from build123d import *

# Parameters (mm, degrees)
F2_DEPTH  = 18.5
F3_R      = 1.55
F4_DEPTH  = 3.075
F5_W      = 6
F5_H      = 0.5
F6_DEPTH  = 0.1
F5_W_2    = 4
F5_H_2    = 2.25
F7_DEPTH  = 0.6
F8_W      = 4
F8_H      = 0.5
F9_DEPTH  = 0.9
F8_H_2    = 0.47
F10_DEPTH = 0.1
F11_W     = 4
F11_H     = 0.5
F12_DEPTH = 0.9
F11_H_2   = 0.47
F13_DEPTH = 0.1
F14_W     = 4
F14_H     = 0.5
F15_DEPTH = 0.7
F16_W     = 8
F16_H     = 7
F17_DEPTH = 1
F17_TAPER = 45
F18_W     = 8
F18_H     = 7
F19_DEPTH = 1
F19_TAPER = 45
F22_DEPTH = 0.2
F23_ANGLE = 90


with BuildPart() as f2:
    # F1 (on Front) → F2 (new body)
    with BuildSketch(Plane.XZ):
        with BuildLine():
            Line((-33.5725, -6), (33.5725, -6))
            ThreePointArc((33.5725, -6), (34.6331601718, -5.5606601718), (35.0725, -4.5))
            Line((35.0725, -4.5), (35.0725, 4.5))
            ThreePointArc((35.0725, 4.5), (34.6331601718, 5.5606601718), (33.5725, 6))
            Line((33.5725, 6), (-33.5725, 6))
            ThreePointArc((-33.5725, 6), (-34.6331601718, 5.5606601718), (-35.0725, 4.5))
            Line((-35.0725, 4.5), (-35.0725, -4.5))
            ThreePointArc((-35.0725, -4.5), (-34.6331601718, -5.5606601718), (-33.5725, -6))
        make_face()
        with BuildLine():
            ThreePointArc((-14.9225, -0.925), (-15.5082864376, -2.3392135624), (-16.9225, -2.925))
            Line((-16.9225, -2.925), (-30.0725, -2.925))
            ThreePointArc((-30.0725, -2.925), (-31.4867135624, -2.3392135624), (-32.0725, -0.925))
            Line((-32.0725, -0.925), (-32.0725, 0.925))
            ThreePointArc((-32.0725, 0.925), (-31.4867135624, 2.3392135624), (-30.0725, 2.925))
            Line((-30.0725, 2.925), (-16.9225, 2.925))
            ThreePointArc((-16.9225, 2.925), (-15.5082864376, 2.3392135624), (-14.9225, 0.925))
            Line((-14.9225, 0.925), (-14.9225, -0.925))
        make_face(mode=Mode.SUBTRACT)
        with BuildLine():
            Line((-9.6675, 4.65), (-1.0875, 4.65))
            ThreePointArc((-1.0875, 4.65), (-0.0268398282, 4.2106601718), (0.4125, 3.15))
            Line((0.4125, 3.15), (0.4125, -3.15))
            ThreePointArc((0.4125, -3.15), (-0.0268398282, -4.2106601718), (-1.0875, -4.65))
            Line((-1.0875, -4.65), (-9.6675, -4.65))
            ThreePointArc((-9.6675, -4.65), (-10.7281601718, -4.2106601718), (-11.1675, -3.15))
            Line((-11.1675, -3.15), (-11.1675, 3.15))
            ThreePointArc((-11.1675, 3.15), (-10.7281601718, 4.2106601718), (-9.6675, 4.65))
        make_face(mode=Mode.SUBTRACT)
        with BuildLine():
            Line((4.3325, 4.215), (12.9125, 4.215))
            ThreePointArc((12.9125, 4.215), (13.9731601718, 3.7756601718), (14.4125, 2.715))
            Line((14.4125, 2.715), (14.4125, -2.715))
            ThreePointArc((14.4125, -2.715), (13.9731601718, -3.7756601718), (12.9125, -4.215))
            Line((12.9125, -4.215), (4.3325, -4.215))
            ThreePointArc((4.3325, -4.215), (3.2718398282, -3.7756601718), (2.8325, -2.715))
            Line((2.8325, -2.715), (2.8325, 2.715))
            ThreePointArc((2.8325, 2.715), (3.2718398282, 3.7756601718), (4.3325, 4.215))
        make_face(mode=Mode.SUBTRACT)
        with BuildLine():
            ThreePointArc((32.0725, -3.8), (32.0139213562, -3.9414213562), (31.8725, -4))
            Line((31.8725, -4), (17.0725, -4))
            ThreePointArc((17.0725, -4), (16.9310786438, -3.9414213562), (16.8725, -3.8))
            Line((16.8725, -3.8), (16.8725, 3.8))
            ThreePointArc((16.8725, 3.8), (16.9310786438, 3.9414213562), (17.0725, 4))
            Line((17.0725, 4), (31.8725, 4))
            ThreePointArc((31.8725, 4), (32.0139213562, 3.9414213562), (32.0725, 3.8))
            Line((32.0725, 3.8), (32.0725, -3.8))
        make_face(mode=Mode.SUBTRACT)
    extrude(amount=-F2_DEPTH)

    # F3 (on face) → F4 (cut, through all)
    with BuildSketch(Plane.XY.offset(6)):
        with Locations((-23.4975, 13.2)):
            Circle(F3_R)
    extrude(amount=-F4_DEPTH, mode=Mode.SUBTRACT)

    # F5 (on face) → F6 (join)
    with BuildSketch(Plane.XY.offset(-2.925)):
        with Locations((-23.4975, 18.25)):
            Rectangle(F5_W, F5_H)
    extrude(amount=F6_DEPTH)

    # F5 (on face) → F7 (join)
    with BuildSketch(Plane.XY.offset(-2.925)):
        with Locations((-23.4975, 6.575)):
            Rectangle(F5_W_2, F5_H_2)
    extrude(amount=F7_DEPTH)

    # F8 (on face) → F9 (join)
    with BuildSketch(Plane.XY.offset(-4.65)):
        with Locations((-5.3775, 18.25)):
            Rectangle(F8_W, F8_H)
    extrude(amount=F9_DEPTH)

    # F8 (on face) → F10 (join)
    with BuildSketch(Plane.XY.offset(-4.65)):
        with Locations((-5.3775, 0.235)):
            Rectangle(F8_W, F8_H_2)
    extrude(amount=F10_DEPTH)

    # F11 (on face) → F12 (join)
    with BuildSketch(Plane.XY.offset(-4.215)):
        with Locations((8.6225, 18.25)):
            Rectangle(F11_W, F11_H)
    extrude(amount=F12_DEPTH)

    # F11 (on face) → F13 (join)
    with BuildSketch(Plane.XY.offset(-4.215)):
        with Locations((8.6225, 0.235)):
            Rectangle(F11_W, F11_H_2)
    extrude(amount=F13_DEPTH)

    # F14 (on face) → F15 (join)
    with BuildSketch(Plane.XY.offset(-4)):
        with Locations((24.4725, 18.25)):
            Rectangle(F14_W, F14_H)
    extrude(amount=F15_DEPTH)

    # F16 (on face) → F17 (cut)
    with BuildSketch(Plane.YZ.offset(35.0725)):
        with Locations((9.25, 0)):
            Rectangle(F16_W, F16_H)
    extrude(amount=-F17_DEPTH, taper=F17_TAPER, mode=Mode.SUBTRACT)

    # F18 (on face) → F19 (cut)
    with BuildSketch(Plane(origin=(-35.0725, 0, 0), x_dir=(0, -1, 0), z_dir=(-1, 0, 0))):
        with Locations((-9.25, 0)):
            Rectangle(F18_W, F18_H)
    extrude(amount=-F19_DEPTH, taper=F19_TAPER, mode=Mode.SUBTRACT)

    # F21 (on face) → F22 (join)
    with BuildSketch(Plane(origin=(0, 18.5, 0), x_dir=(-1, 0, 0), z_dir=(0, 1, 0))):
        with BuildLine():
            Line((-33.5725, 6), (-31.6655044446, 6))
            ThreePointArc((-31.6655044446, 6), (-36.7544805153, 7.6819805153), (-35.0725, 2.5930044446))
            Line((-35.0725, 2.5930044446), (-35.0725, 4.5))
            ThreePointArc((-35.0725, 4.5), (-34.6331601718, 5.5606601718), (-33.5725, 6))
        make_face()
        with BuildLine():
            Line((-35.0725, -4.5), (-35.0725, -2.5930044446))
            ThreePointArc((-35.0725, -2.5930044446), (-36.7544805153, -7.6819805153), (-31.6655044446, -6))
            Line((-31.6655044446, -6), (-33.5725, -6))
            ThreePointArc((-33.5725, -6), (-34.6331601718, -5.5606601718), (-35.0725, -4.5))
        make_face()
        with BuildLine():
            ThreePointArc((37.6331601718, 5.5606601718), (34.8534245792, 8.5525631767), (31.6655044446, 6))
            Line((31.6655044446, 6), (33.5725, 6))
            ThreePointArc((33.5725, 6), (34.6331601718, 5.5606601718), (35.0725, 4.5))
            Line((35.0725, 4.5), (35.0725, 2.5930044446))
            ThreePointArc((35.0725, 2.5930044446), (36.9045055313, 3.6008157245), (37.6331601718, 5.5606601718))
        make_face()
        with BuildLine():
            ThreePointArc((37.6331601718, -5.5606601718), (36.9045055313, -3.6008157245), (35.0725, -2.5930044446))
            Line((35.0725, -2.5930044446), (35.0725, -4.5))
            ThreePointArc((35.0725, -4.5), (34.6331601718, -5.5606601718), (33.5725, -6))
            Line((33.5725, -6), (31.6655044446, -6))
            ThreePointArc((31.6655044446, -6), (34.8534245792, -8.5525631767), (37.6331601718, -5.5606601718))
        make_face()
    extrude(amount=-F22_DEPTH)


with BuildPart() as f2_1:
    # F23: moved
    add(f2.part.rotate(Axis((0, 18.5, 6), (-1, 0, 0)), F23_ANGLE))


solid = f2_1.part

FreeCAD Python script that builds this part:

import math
import FreeCAD as App
import Part
import Sketcher
Q = App.Units.Quantity

doc = App.newDocument("Part")
params = doc.addObject("Spreadsheet::Sheet", "Params")
for row, (alias, value) in enumerate([
    ("sketch1_radius", "2 mm"),
    ("sketch1_radius2", "1.5 mm"),
    ("sketch1_radius3", "0.2 mm"),
    ("sketch1_height", "9 mm"),
    ("sketch1_width", "14.8 mm"),
    ("pad1_length", "18.5 mm"),
    ("sketch2_diameter", "3.1 mm"),
    ("pocket1_length", "3.075 mm"),
    ("sketch3_width", "6 mm"),
    ("sketch3_height", "0.5 mm"),
    ("pad2_length", "0.1 mm"),
    ("sketch4_width", "4 mm"),
    ("sketch4_height", "2.25 mm"),
    ("pad3_length", "0.6 mm"),
    ("sketch5_width", "4 mm"),
    ("sketch5_height", "0.5 mm"),
    ("pad4_length", "0.9 mm"),
    ("sketch6_width", "4 mm"),
    ("sketch6_height", "0.47 mm"),
    ("pad5_length", "0.1 mm"),
    ("sketch7_width", "4 mm"),
    ("sketch7_height", "0.5 mm"),
    ("pad6_length", "0.9 mm"),
    ("sketch8_width", "4 mm"),
    ("sketch8_height", "0.47 mm"),
    ("pad7_length", "0.1 mm"),
    ("sketch9_width", "4 mm"),
    ("sketch9_height", "0.5 mm"),
    ("pad8_length", "0.7 mm"),
    ("sketch10_width", "8 mm"),
    ("sketch10_height", "7 mm"),
    ("pocket2_length", "1 mm"),
    ("pocket2_taper", "-45 deg"),
    ("sketch11_width", "8 mm"),
    ("sketch11_height", "7 mm"),
    ("pocket3_length", "1 mm"),
    ("pocket3_taper", "-45 deg"),
    ("sketch12_radius", "3 mm"),
    ("sketch12_radius2", "1.5 mm"),
    ("pad9_length", "0.2 mm"),
], start=1):
    params.set(f"A{row}", alias)
    params.set(f"B{row}", "=" + value)
    params.setAlias(f"B{row}", alias)

body = doc.addObject("PartDesign::Body", "Body")

# Sketch on XZ plane
sketch1 = body.newObject("Sketcher::SketchObject", "Sketch")
sketch1.AttachmentSupport = (doc.getObject("XZ_Plane"), [""])
sketch1.MapMode = "FlatFace"
sketch1.addGeometry(Part.LineSegment(App.Vector(-33.57, -6, 0), App.Vector(33.57, -6, 0)), False)
sketch1.addGeometry(Part.ArcOfCircle(Part.Circle(App.Vector(33.57, -4.5, 0), App.Vector(0, 0, 1), 1.5), math.radians(-90), math.radians(0)), False)
sketch1.addGeometry(Part.LineSegment(App.Vector(35.07, -4.5, 0), App.Vector(35.07, 4.5, 0)), False)
sketch1.addGeometry(Part.ArcOfCircle(Part.Circle(App.Vector(33.57, 4.5, 0), App.Vector(0, 0, 1), 1.5), math.radians(0), math.radians(90)), False)
sketch1.addGeometry(Part.LineSegment(App.Vector(33.57, 6, 0), App.Vector(-33.57, 6, 0)), False)
sketch1.addGeometry(Part.ArcOfCircle(Part.Circle(App.Vector(-33.57, 4.5, 0), App.Vector(0, 0, 1), 1.5), math.radians(90), math.radians(180)), False)
sketch1.addGeometry(Part.LineSegment(App.Vector(-35.07, 4.5, 0), App.Vector(-35.07, -4.5, 0)), False)
sketch1.addGeometry(Part.ArcOfCircle(Part.Circle(App.Vector(-33.57, -4.5, 0), App.Vector(0, 0, 1), 1.5), math.radians(180), math.radians(270)), False)
sketch1.addGeometry(Part.ArcOfCircle(Part.Circle(App.Vector(4.33, 2.71, 0), App.Vector(0, 0, 1), 1.5), math.radians(90), math.radians(180)), False)
sketch1.addGeometry(Part.LineSegment(App.Vector(4.33, 4.21, 0), App.Vector(12.91, 4.21, 0)), False)
sketch1.addGeometry(Part.ArcOfCircle(Part.Circle(App.Vector(12.91, 2.71, 0), App.Vector(0, 0, 1), 1.5), math.radians(0), math.radians(90)), False)
sketch1.addGeometry(Part.LineSegment(App.Vector(14.41, 2.71, 0), App.Vector(14.41, -2.71, 0)), False)
sketch1.addGeometry(Part.ArcOfCircle(Part.Circle(App.Vector(12.91, -2.71, 0), App.Vector(0, 0, 1), 1.5), math.radians(-90), math.radians(0)), False)
sketch1.addGeometry(Part.LineSegment(App.Vector(12.91, -4.21, 0), App.Vector(4.33, -4.21, 0)), False)
sketch1.addGeometry(Part.ArcOfCircle(Part.Circle(App.Vector(4.33, -2.71, 0), App.Vector(0, 0, 1), 1.5), math.radians(180), math.radians(270)), False)
sketch1.addGeometry(Part.LineSegment(App.Vector(2.83, -2.71, 0), App.Vector(2.83, 2.71, 0)), False)
sketch1.addGeometry(Part.LineSegment(App.Vector(-14.92, 0.93, 0), App.Vector(-14.92, -0.93, 0)), False)
sketch1.addGeometry(Part.ArcOfCircle(Part.Circle(App.Vector(-16.92, -0.93, 0), App.Vector(0, 0, 1), 2), math.radians(-90), math.radians(0)), False)
sketch1.addGeometry(Part.LineSegment(App.Vector(-16.92, -2.92, 0), App.Vector(-30.07, -2.92, 0)), False)
sketch1.addGeometry(Part.ArcOfCircle(Part.Circle(App.Vector(-30.07, -0.93, 0), App.Vector(0, 0, 1), 2), math.radians(180), math.radians(270)), False)
sketch1.addGeometry(Part.LineSegment(App.Vector(-32.07, -0.93, 0), App.Vector(-32.07, 0.93, 0)), False)
sketch1.addGeometry(Part.ArcOfCircle(Part.Circle(App.Vector(-30.07, 0.93, 0), App.Vector(0, 0, 1), 2), math.radians(90), math.radians(180)), False)
sketch1.addGeometry(Part.LineSegment(App.Vector(-30.07, 2.92, 0), App.Vector(-16.92, 2.92, 0)), False)
sketch1.addGeometry(Part.ArcOfCircle(Part.Circle(App.Vector(-16.92, 0.93, 0), App.Vector(0, 0, 1), 2), math.radians(0), math.radians(90)), False)
sketch1.addGeometry(Part.ArcOfCircle(Part.Circle(App.Vector(-9.67, 3.15, 0), App.Vector(0, 0, 1), 1.5), math.radians(90), math.radians(180)), False)
sketch1.addGeometry(Part.LineSegment(App.Vector(-9.67, 4.65, 0), App.Vector(-1.09, 4.65, 0)), False)
sketch1.addGeometry(Part.ArcOfCircle(Part.Circle(App.Vector(-1.09, 3.15, 0), App.Vector(0, 0, 1), 1.5), math.radians(0), math.radians(90)), False)
sketch1.addGeometry(Part.LineSegment(App.Vector(0.41, 3.15, 0), App.Vector(0.41, -3.15, 0)), False)
sketch1.addGeometry(Part.ArcOfCircle(Part.Circle(App.Vector(-1.09, -3.15, 0), App.Vector(0, 0, 1), 1.5), math.radians(-90), math.radians(0)), False)
sketch1.addGeometry(Part.LineSegment(App.Vector(-1.09, -4.65, 0), App.Vector(-9.67, -4.65, 0)), False)
sketch1.addGeometry(Part.ArcOfCircle(Part.Circle(App.Vector(-9.67, -3.15, 0), App.Vector(0, 0, 1), 1.5), math.radians(180), math.radians(270)), False)
sketch1.addGeometry(Part.LineSegment(App.Vector(-11.17, -3.15, 0), App.Vector(-11.17, 3.15, 0)), False)
sketch1.addGeometry(Part.LineSegment(App.Vector(32.07, 3.8, 0), App.Vector(32.07, -3.8, 0)), False)
sketch1.addGeometry(Part.ArcOfCircle(Part.Circle(App.Vector(31.87, -3.8, 0), App.Vector(0, 0, 1), 0.2), math.radians(-90), math.radians(0)), False)
sketch1.addGeometry(Part.LineSegment(App.Vector(31.87, -4, 0), App.Vector(17.07, -4, 0)), False)
sketch1.addGeometry(Part.ArcOfCircle(Part.Circle(App.Vector(17.07, -3.8, 0), App.Vector(0, 0, 1), 0.2), math.radians(180), math.radians(270)), False)
sketch1.addGeometry(Part.LineSegment(App.Vector(16.87, -3.8, 0), App.Vector(16.87, 3.8, 0)), False)
sketch1.addGeometry(Part.ArcOfCircle(Part.Circle(App.Vector(17.07, 3.8, 0), App.Vector(0, 0, 1), 0.2), math.radians(90), math.radians(180)), False)
sketch1.addGeometry(Part.LineSegment(App.Vector(17.07, 4, 0), App.Vector(31.87, 4, 0)), False)
sketch1.addGeometry(Part.ArcOfCircle(Part.Circle(App.Vector(31.87, 3.8, 0), App.Vector(0, 0, 1), 0.2), math.radians(0), math.radians(90)), False)
sketch1.addConstraint(Sketcher.Constraint("Tangent", 0, 2, 1, 1))
sketch1.addConstraint(Sketcher.Constraint("Tangent", 1, 2, 2, 1))
sketch1.addConstraint(Sketcher.Constraint("Tangent", 2, 2, 3, 1))
sketch1.addConstraint(Sketcher.Constraint("Tangent", 3, 2, 4, 1))
sketch1.addConstraint(Sketcher.Constraint("Tangent", 4, 2, 5, 1))
sketch1.addConstraint(Sketcher.Constraint("Tangent", 5, 2, 6, 1))
sketch1.addConstraint(Sketcher.Constraint("Tangent", 6, 2, 7, 1))
sketch1.addConstraint(Sketcher.Constraint("Tangent", 7, 2, 0, 1))
sketch1.addConstraint(Sketcher.Constraint("Tangent", 8, 1, 9, 1))
sketch1.addConstraint(Sketcher.Constraint("Tangent", 9, 2, 10, 2))
sketch1.addConstraint(Sketcher.Constraint("Tangent", 10, 1, 11, 1))
sketch1.addConstraint(Sketcher.Constraint("Tangent", 11, 2, 12, 2))
sketch1.addConstraint(Sketcher.Constraint("Tangent", 12, 1, 13, 1))
sketch1.addConstraint(Sketcher.Constraint("Tangent", 13, 2, 14, 2))
sketch1.addConstraint(Sketcher.Constraint("Tangent", 14, 1, 15, 1))
sketch1.addConstraint(Sketcher.Constraint("Tangent", 15, 2, 8, 2))
sketch1.addConstraint(Sketcher.Constraint("Tangent", 16, 2, 17, 2))
sketch1.addConstraint(Sketcher.Constraint("Tangent", 17, 1, 18, 1))
sketch1.addConstraint(Sketcher.Constraint("Tangent", 18, 2, 19, 2))
sketch1.addConstraint(Sketcher.Constraint("Tangent", 19, 1, 20, 1))
sketch1.addConstraint(Sketcher.Constraint("Tangent", 20, 2, 21, 2))
sketch1.addConstraint(Sketcher.Constraint("Tangent", 21, 1, 22, 1))
sketch1.addConstraint(Sketcher.Constraint("Tangent", 22, 2, 23, 2))
sketch1.addConstraint(Sketcher.Constraint("Tangent", 23, 1, 16, 1))
sketch1.addConstraint(Sketcher.Constraint("Tangent", 24, 1, 25, 1))
sketch1.addConstraint(Sketcher.Constraint("Tangent", 25, 2, 26, 2))
sketch1.addConstraint(Sketcher.Constraint("Tangent", 26, 1, 27, 1))
sketch1.addConstraint(Sketcher.Constraint("Tangent", 27, 2, 28, 2))
sketch1.addConstraint(Sketcher.Constraint("Tangent", 28, 1, 29, 1))
sketch1.addConstraint(Sketcher.Constraint("Tangent", 29, 2, 30, 2))
sketch1.addConstraint(Sketcher.Constraint("Tangent", 30, 1, 31, 1))
sketch1.addConstraint(Sketcher.Constraint("Tangent", 31, 2, 24, 2))
sketch1.addConstraint(Sketcher.Constraint("Tangent", 32, 2, 33, 2))
sketch1.addConstraint(Sketcher.Constraint("Tangent", 33, 1, 34, 1))
sketch1.addConstraint(Sketcher.Constraint("Tangent", 34, 2, 35, 2))
sketch1.addConstraint(Sketcher.Constraint("Tangent", 35, 1, 36, 1))
sketch1.addConstraint(Sketcher.Constraint("Tangent", 36, 2, 37, 2))
sketch1.addConstraint(Sketcher.Constraint("Tangent", 37, 1, 38, 1))
sketch1.addConstraint(Sketcher.Constraint("Tangent", 38, 2, 39, 2))
sketch1.addConstraint(Sketcher.Constraint("Tangent", 39, 1, 32, 1))
sketch1.addConstraint(Sketcher.Constraint("Horizontal", 0))
sketch1.addConstraint(Sketcher.Constraint("Vertical", 2))
sketch1.addConstraint(Sketcher.Constraint("Horizontal", 4))
sketch1.addConstraint(Sketcher.Constraint("Vertical", 6))
sketch1.addConstraint(Sketcher.Constraint("Horizontal", 9))
sketch1.addConstraint(Sketcher.Constraint("Vertical", 11))
sketch1.addConstraint(Sketcher.Constraint("Horizontal", 13))
sketch1.addConstraint(Sketcher.Constraint("Vertical", 15))
sketch1.addConstraint(Sketcher.Constraint("Vertical", 16))
sketch1.addConstraint(Sketcher.Constraint("Horizontal", 18))
sketch1.addConstraint(Sketcher.Constraint("Vertical", 20))
sketch1.addConstraint(Sketcher.Constraint("Horizontal", 22))
sketch1.addConstraint(Sketcher.Constraint("Horizontal", 25))
sketch1.addConstraint(Sketcher.Constraint("Vertical", 27))
sketch1.addConstraint(Sketcher.Constraint("Horizontal", 29))
sketch1.addConstraint(Sketcher.Constraint("Vertical", 31))
sketch1.addConstraint(Sketcher.Constraint("Vertical", 32))
sketch1.addConstraint(Sketcher.Constraint("Horizontal", 34))
sketch1.addConstraint(Sketcher.Constraint("Vertical", 36))
sketch1.addConstraint(Sketcher.Constraint("Horizontal", 38))
sketch1.addConstraint(Sketcher.Constraint("Equal", 1, 3))
sketch1.addConstraint(Sketcher.Constraint("Equal", 3, 5))
sketch1.addConstraint(Sketcher.Constraint("Equal", 5, 7))
sketch1.addConstraint(Sketcher.Constraint("Equal", 7, 8))
sketch1.addConstraint(Sketcher.Constraint("Equal", 8, 10))
sketch1.addConstraint(Sketcher.Constraint("Equal", 10, 12))
sketch1.addConstraint(Sketcher.Constraint("Equal", 12, 14))
sketch1.addConstraint(Sketcher.Constraint("Equal", 17, 19))
sketch1.addConstraint(Sketcher.Constraint("Equal", 19, 21))
sketch1.addConstraint(Sketcher.Constraint("Equal", 21, 23))
sketch1.addConstraint(Sketcher.Constraint("Equal", 14, 24))
sketch1.addConstraint(Sketcher.Constraint("Equal", 24, 26))
sketch1.addConstraint(Sketcher.Constraint("Equal", 26, 28))
sketch1.addConstraint(Sketcher.Constraint("Equal", 28, 30))
sketch1.addConstraint(Sketcher.Constraint("Equal", 33, 35))
sketch1.addConstraint(Sketcher.Constraint("Equal", 35, 37))
sketch1.addConstraint(Sketcher.Constraint("Equal", 37, 39))
sketch1.addConstraint(Sketcher.Constraint("Symmetric", 1, 3, 5, 3, -1, 1))
sketch1.addConstraint(Sketcher.Constraint("Equal", 13, 25))
sketch1.addConstraint(Sketcher.Constraint("Radius", 17, Q("2 mm")))
sketch1.addConstraint(Sketcher.Constraint("Radius", 1, Q("1.5 mm")))
sketch1.addConstraint(Sketcher.Constraint("Radius", 33, Q("0.2 mm")))
sketch1.addConstraint(Sketcher.Constraint("DistanceY", 2, 1, 2, 2, Q("9 mm")))
sketch1.addConstraint(Sketcher.Constraint("DistanceX", 34, 2, 34, 1, Q("14.8 mm")))
sketch1.addConstraint(Sketcher.Constraint("DistanceY", 27, 2, 27, 1, Q("6.3 mm")))
sketch1.addConstraint(Sketcher.Constraint("DistanceY", 32, 2, 32, 1, Q("7.6 mm")))
sketch1.addConstraint(Sketcher.Constraint("DistanceY", 33, 1, -1, 1, Q("4 mm")))
sketch1.addConstraint(Sketcher.Constraint("DistanceX", 24, 3, 8, 3, Q("14 mm")))
sketch1.addConstraint(Sketcher.Constraint("DistanceX", 5, 2, 21, 3, Q("5 mm")))
sketch1.addConstraint(Sketcher.Constraint("DistanceX", 32, 2, 1, 2, Q("3 mm")))
sketch1.addConstraint(Sketcher.Constraint("DistanceX", 9, 1, 9, 2, Q("8.58 mm")))
sketch1.addConstraint(Sketcher.Constraint("DistanceX", 18, 2, 18, 1, Q("13.15 mm")))
sketch1.addConstraint(Sketcher.Constraint("DistanceY", 11, 2, 11, 1, Q("5.43 mm")))
sketch1.addConstraint(Sketcher.Constraint("DistanceY", 16, 2, 16, 1, Q("1.85 mm")))
sketch1.addConstraint(Sketcher.Constraint("DistanceX", 0, 1, 0, 2, Q("67.145 mm")))
sketch1.addConstraint(Sketcher.Constraint("DistanceY", -1, 1, 24, 3, Q("3.15 mm")))
sketch1.addConstraint(Sketcher.Constraint("DistanceX", 8, 3, 3, 3, Q("29.24 mm")))
sketch1.addConstraint(Sketcher.Constraint("DistanceY", 14, 3, 17, 3, Q("1.79 mm")))
sketch1.addConstraint(Sketcher.Constraint("DistanceY", -1, 1, 8, 3, Q("2.715 mm")))
sketch1.setExpression("Constraints[79]", "Params.sketch1_radius")
sketch1.setExpression("Constraints[80]", "Params.sketch1_radius2")
sketch1.setExpression("Constraints[81]", "Params.sketch1_radius3")
sketch1.setExpression("Constraints[82]", "Params.sketch1_height")
sketch1.setExpression("Constraints[83]", "Params.sketch1_width")
pad1 = body.newObject("PartDesign::Pad", "Pad")
pad1.Profile = sketch1
pad1.setExpression("Length", "Params.pad1_length")
pad1.Reversed = True

# Sketch on XY plane
sketch2 = body.newObject("Sketcher::SketchObject", "Sketch001")
sketch2.AttachmentSupport = (doc.getObject("XY_Plane"), [""])
sketch2.MapMode = "FlatFace"
sketch2.AttachmentOffset = App.Placement(App.Vector(0, 0, 6), App.Rotation())
sketch2.addGeometry(Part.Circle(App.Vector(-23.5, 13.2, 0), App.Vector(0, 0, 1), 1.6), False)
sketch2.addConstraint(Sketcher.Constraint("Diameter", 0, Q("3.1 mm")))
sketch2.addConstraint(Sketcher.Constraint("DistanceY", -1, 1, 0, 3, Q("13.2 mm")))
sketch2.addConstraint(Sketcher.Constraint("DistanceX", 0, 3, -1, 1, Q("23.4975 mm")))
sketch2.setExpression("Constraints[0]", "Params.sketch2_diameter")
pocket1 = body.newObject("PartDesign::Pocket", "Pocket")
pocket1.Profile = sketch2
pocket1.setExpression("Length", "Params.pocket1_length")

# Sketch on XY plane
sketch3 = body.newObject("Sketcher::SketchObject", "Sketch002")
sketch3.AttachmentSupport = (doc.getObject("XY_Plane"), [""])
sketch3.MapMode = "FlatFace"
sketch3.AttachmentOffset = App.Placement(App.Vector(0, 0, -2.925), App.Rotation())
sketch3.addGeometry(Part.LineSegment(App.Vector(-26.5, 18.5, 0), App.Vector(-26.5, 18, 0)), False)
sketch3.addGeometry(Part.LineSegment(App.Vector(-26.5, 18, 0), App.Vector(-20.5, 18, 0)), False)
sketch3.addGeometry(Part.LineSegment(App.Vector(-20.5, 18, 0), App.Vector(-20.5, 18.5, 0)), False)
sketch3.addGeometry(Part.LineSegment(App.Vector(-20.5, 18.5, 0), App.Vector(-26.5, 18.5, 0)), False)
sketch3.addConstraint(Sketcher.Constraint("Coincident", 0, 2, 1, 1))
sketch3.addConstraint(Sketcher.Constraint("Coincident", 1, 2, 2, 1))
sketch3.addConstraint(Sketcher.Constraint("Coincident", 2, 2, 3, 1))
sketch3.addConstraint(Sketcher.Constraint("Coincident", 3, 2, 0, 1))
sketch3.addConstraint(Sketcher.Constraint("Vertical", 0))
sketch3.addConstraint(Sketcher.Constraint("Horizontal", 1))
sketch3.addConstraint(Sketcher.Constraint("Vertical", 2))
sketch3.addConstraint(Sketcher.Constraint("Horizontal", 3))
sketch3.addConstraint(Sketcher.Constraint("DistanceX", 1, 1, 1, 2, Q("6 mm")))
sketch3.addConstraint(Sketcher.Constraint("DistanceY", 0, 2, 0, 1, Q("0.5 mm")))
sketch3.addConstraint(Sketcher.Constraint("DistanceY", -1, 1, 0, 2, Q("18 mm")))
sketch3.addConstraint(Sketcher.Constraint("DistanceX", 0, 2, -1, 1, Q("26.4975 mm")))
sketch3.setExpression("Constraints[8]", "Params.sketch3_width")
sketch3.setExpression("Constraints[9]", "Params.sketch3_height")
pad2 = body.newObject("PartDesign::Pad", "Pad001")
pad2.Profile = sketch3
pad2.setExpression("Length", "Params.pad2_length")

# Sketch on XY plane
sketch4 = body.newObject("Sketcher::SketchObject", "Sketch003")
sketch4.AttachmentSupport = (doc.getObject("XY_Plane"), [""])
sketch4.MapMode = "FlatFace"
sketch4.AttachmentOffset = App.Placement(App.Vector(0, 0, -2.925), App.Rotation())
sketch4.addGeometry(Part.LineSegment(App.Vector(-25.5, 7.7, 0), App.Vector(-25.5, 5.5, 0)), False)
sketch4.addGeometry(Part.LineSegment(App.Vector(-25.5, 5.5, 0), App.Vector(-21.5, 5.5, 0)), False)
sketch4.addGeometry(Part.LineSegment(App.Vector(-21.5, 5.5, 0), App.Vector(-21.5, 7.7, 0)), False)
sketch4.addGeometry(Part.LineSegment(App.Vector(-21.5, 7.7, 0), App.Vector(-25.5, 7.7, 0)), False)
sketch4.addConstraint(Sketcher.Constraint("Coincident", 0, 2, 1, 1))
sketch4.addConstraint(Sketcher.Constraint("Coincident", 1, 2, 2, 1))
sketch4.addConstraint(Sketcher.Constraint("Coincident", 2, 2, 3, 1))
sketch4.addConstraint(Sketcher.Constraint("Coincident", 3, 2, 0, 1))
sketch4.addConstraint(Sketcher.Constraint("Vertical", 0))
sketch4.addConstraint(Sketcher.Constraint("Horizontal", 1))
sketch4.addConstraint(Sketcher.Constraint("Vertical", 2))
sketch4.addConstraint(Sketcher.Constraint("Horizontal", 3))
sketch4.addConstraint(Sketcher.Constraint("DistanceX", 1, 1, 1, 2, Q("4 mm")))
sketch4.addConstraint(Sketcher.Constraint("DistanceY", 0, 2, 0, 1, Q("2.25 mm")))
sketch4.addConstraint(Sketcher.Constraint("DistanceY", -1, 1, 2, 2, Q("7.7 mm")))
sketch4.addConstraint(Sketcher.Constraint("DistanceX", 0, 2, -1, 1, Q("25.4975 mm")))
sketch4.setExpression("Constraints[8]", "Params.sketch4_width")
sketch4.setExpression("Constraints[9]", "Params.sketch4_height")
pad3 = body.newObject("PartDesign::Pad", "Pad002")
pad3.Profile = sketch4
pad3.setExpression("Length", "Params.pad3_length")

# Sketch on XY plane
sketch5 = body.newObject("Sketcher::SketchObject", "Sketch004")
sketch5.AttachmentSupport = (doc.getObject("XY_Plane"), [""])
sketch5.MapMode = "FlatFace"
sketch5.AttachmentOffset = App.Placement(App.Vector(0, 0, -4.65), App.Rotation())
sketch5.addGeometry(Part.LineSegment(App.Vector(-7.4, 18.5, 0), App.Vector(-7.4, 18, 0)), False)
sketch5.addGeometry(Part.LineSegment(App.Vector(-7.4, 18, 0), App.Vector(-3.4, 18, 0)), False)
sketch5.addGeometry(Part.LineSegment(App.Vector(-3.4, 18, 0), App.Vector(-3.4, 18.5, 0)), False)
sketch5.addGeometry(Part.LineSegment(App.Vector(-3.4, 18.5, 0), App.Vector(-7.4, 18.5, 0)), False)
sketch5.addConstraint(Sketcher.Constraint("Coincident", 0, 2, 1, 1))
sketch5.addConstraint(Sketcher.Constraint("Coincident", 1, 2, 2, 1))
sketch5.addConstraint(Sketcher.Constraint("Coincident", 2, 2, 3, 1))
sketch5.addConstraint(Sketcher.Constraint("Coincident", 3, 2, 0, 1))
sketch5.addConstraint(Sketcher.Constraint("Vertical", 0))
sketch5.addConstraint(Sketcher.Constraint("Horizontal", 1))
sketch5.addConstraint(Sketcher.Constraint("Vertical", 2))
sketch5.addConstraint(Sketcher.Constraint("Horizontal", 3))
sketch5.addConstraint(Sketcher.Constraint("DistanceX", 1, 1, 1, 2, Q("4 mm")))
sketch5.addConstraint(Sketcher.Constraint("DistanceY", 0, 2, 0, 1, Q("0.5 mm")))
sketch5.addConstraint(Sketcher.Constraint("DistanceY", -1, 1, 0, 2, Q("18 mm")))
sketch5.addConstraint(Sketcher.Constraint("DistanceX", 0, 2, -1, 1, Q("7.3775 mm")))
sketch5.setExpression("Constraints[8]", "Params.sketch5_width")
sketch5.setExpression("Constraints[9]", "Params.sketch5_height")
pad4 = body.newObject("PartDesign::Pad", "Pad003")
pad4.Profile = sketch5
pad4.setExpression("Length", "Params.pad4_length")

# Sketch on XY plane
sketch6 = body.newObject("Sketcher::SketchObject", "Sketch005")
sketch6.AttachmentSupport = (doc.getObject("XY_Plane"), [""])
sketch6.MapMode = "FlatFace"
sketch6.AttachmentOffset = App.Placement(App.Vector(0, 0, -4.65), App.Rotation())
sketch6.addGeometry(Part.LineSegment(App.Vector(-7.38, 0.47, 0), App.Vector(-7.38, 0, 0)), False)
sketch6.addGeometry(Part.LineSegment(App.Vector(-7.38, 0, 0), App.Vector(-3.38, 0, 0)), False)
sketch6.addGeometry(Part.LineSegment(App.Vector(-3.38, 0, 0), App.Vector(-3.38, 0.47, 0)), False)
sketch6.addGeometry(Part.LineSegment(App.Vector(-3.38, 0.47, 0), App.Vector(-7.38, 0.47, 0)), False)
sketch6.addConstraint(Sketcher.Constraint("Coincident", 0, 2, 1, 1))
sketch6.addConstraint(Sketcher.Constraint("Coincident", 1, 2, 2, 1))
sketch6.addConstraint(Sketcher.Constraint("Coincident", 2, 2, 3, 1))
sketch6.addConstraint(Sketcher.Constraint("Coincident", 3, 2, 0, 1))
sketch6.addConstraint(Sketcher.Constraint("Vertical", 0))
sketch6.addConstraint(Sketcher.Constraint("Horizontal", 1))
sketch6.addConstraint(Sketcher.Constraint("Vertical", 2))
sketch6.addConstraint(Sketcher.Constraint("Horizontal", 3))
sketch6.addConstraint(Sketcher.Constraint("PointOnObject", 0, 2, -1))
sketch6.addConstraint(Sketcher.Constraint("DistanceX", 1, 1, 1, 2, Q("4 mm")))
sketch6.addConstraint(Sketcher.Constraint("DistanceY", 0, 2, 0, 1, Q("0.47 mm")))
sketch6.addConstraint(Sketcher.Constraint("DistanceX", 0, 2, -1, 1, Q("7.3775 mm")))
sketch6.setExpression("Constraints[9]", "Params.sketch6_width")
sketch6.setExpression("Constraints[10]", "Params.sketch6_height")
pad5 = body.newObject("PartDesign::Pad", "Pad004")
pad5.Profile = sketch6
pad5.setExpression("Length", "Params.pad5_length")

# Sketch on XY plane
sketch7 = body.newObject("Sketcher::SketchObject", "Sketch006")
sketch7.AttachmentSupport = (doc.getObject("XY_Plane"), [""])
sketch7.MapMode = "FlatFace"
sketch7.AttachmentOffset = App.Placement(App.Vector(0, 0, -4.215), App.Rotation())
sketch7.addGeometry(Part.LineSegment(App.Vector(6.6, 18.5, 0), App.Vector(6.6, 18, 0)), False)
sketch7.addGeometry(Part.LineSegment(App.Vector(6.6, 18, 0), App.Vector(10.6, 18, 0)), False)
sketch7.addGeometry(Part.LineSegment(App.Vector(10.6, 18, 0), App.Vector(10.6, 18.5, 0)), False)
sketch7.addGeometry(Part.LineSegment(App.Vector(10.6, 18.5, 0), App.Vector(6.6, 18.5, 0)), False)
sketch7.addConstraint(Sketcher.Constraint("Coincident", 0, 2, 1, 1))
sketch7.addConstraint(Sketcher.Constraint("Coincident", 1, 2, 2, 1))
sketch7.addConstraint(Sketcher.Constraint("Coincident", 2, 2, 3, 1))
sketch7.addConstraint(Sketcher.Constraint("Coincident", 3, 2, 0, 1))
sketch7.addConstraint(Sketcher.Constraint("Vertical", 0))
sketch7.addConstraint(Sketcher.Constraint("Horizontal", 1))
sketch7.addConstraint(Sketcher.Constraint("Vertical", 2))
sketch7.addConstraint(Sketcher.Constraint("Horizontal", 3))
sketch7.addConstraint(Sketcher.Constraint("DistanceX", 1, 1, 1, 2, Q("4 mm")))
sketch7.addConstraint(Sketcher.Constraint("DistanceY", 0, 2, 0, 1, Q("0.5 mm")))
sketch7.addConstraint(Sketcher.Constraint("DistanceY", -1, 1, 0, 2, Q("18 mm")))
sketch7.addConstraint(Sketcher.Constraint("DistanceX", -1, 1, 0, 2, Q("6.6225 mm")))
sketch7.setExpression("Constraints[8]", "Params.sketch7_width")
sketch7.setExpression("Constraints[9]", "Params.sketch7_height")
pad6 = body.newObject("PartDesign::Pad", "Pad005")
pad6.Profile = sketch7
pad6.setExpression("Length", "Params.pad6_length")

# Sketch on XY plane
sketch8 = body.newObject("Sketcher::SketchObject", "Sketch007")
sketch8.AttachmentSupport = (doc.getObject("XY_Plane"), [""])
sketch8.MapMode = "FlatFace"
sketch8.AttachmentOffset = App.Placement(App.Vector(0, 0, -4.215), App.Rotation())
sketch8.addGeometry(Part.LineSegment(App.Vector(6.62, 0.47, 0), App.Vector(6.62, 0, 0)), False)
sketch8.addGeometry(Part.LineSegment(App.Vector(6.62, 0, 0), App.Vector(10.62, 0, 0)), False)
sketch8.addGeometry(Part.LineSegment(App.Vector(10.62, 0, 0), App.Vector(10.62, 0.47, 0)), False)
sketch8.addGeometry(Part.LineSegment(App.Vector(10.62, 0.47, 0), App.Vector(6.62, 0.47, 0)), False)
sketch8.addConstraint(Sketcher.Constraint("Coincident", 0, 2, 1, 1))
sketch8.addConstraint(Sketcher.Constraint("Coincident", 1, 2, 2, 1))
sketch8.addConstraint(Sketcher.Constraint("Coincident", 2, 2, 3, 1))
sketch8.addConstraint(Sketcher.Constraint("Coincident", 3, 2, 0, 1))
sketch8.addConstraint(Sketcher.Constraint("Vertical", 0))
sketch8.addConstraint(Sketcher.Constraint("Horizontal", 1))
sketch8.addConstraint(Sketcher.Constraint("Vertical", 2))
sketch8.addConstraint(Sketcher.Constraint("Horizontal", 3))
sketch8.addConstraint(Sketcher.Constraint("PointOnObject", 0, 2, -1))
sketch8.addConstraint(Sketcher.Constraint("DistanceX", 1, 1, 1, 2, Q("4 mm")))
sketch8.addConstraint(Sketcher.Constraint("DistanceY", 0, 2, 0, 1, Q("0.47 mm")))
sketch8.addConstraint(Sketcher.Constraint("DistanceX", -1, 1, 0, 2, Q("6.6225 mm")))
sketch8.setExpression("Constraints[9]", "Params.sketch8_width")
sketch8.setExpression("Constraints[10]", "Params.sketch8_height")
pad7 = body.newObject("PartDesign::Pad", "Pad006")
pad7.Profile = sketch8
pad7.setExpression("Length", "Params.pad7_length")

# Sketch on XY plane
sketch9 = body.newObject("Sketcher::SketchObject", "Sketch008")
sketch9.AttachmentSupport = (doc.getObject("XY_Plane"), [""])
sketch9.MapMode = "FlatFace"
sketch9.AttachmentOffset = App.Placement(App.Vector(0, 0, -4), App.Rotation())
sketch9.addGeometry(Part.LineSegment(App.Vector(22.5, 18.5, 0), App.Vector(22.5, 18, 0)), False)
sketch9.addGeometry(Part.LineSegment(App.Vector(22.5, 18, 0), App.Vector(26.5, 18, 0)), False)
sketch9.addGeometry(Part.LineSegment(App.Vector(26.5, 18, 0), App.Vector(26.5, 18.5, 0)), False)
sketch9.addGeometry(Part.LineSegment(App.Vector(26.5, 18.5, 0), App.Vector(22.5, 18.5, 0)), False)
sketch9.addConstraint(Sketcher.Constraint("Coincident", 0, 2, 1, 1))
sketch9.addConstraint(Sketcher.Constraint("Coincident", 1, 2, 2, 1))
sketch9.addConstraint(Sketcher.Constraint("Coincident", 2, 2, 3, 1))
sketch9.addConstraint(Sketcher.Constraint("Coincident", 3, 2, 0, 1))
sketch9.addConstraint(Sketcher.Constraint("Vertical", 0))
sketch9.addConstraint(Sketcher.Constraint("Horizontal", 1))
sketch9.addConstraint(Sketcher.Constraint("Vertical", 2))
sketch9.addConstraint(Sketcher.Constraint("Horizontal", 3))
sketch9.addConstraint(Sketcher.Constraint("DistanceX", 1, 1, 1, 2, Q("4 mm")))
sketch9.addConstraint(Sketcher.Constraint("DistanceY", 0, 2, 0, 1, Q("0.5 mm")))
sketch9.addConstraint(Sketcher.Constraint("DistanceY", -1, 1, 0, 2, Q("18 mm")))
sketch9.addConstraint(Sketcher.Constraint("DistanceX", -1, 1, 0, 2, Q("22.4725 mm")))
sketch9.setExpression("Constraints[8]", "Params.sketch9_width")
sketch9.setExpression("Constraints[9]", "Params.sketch9_height")
pad8 = body.newObject("PartDesign::Pad", "Pad007")
pad8.Profile = sketch9
pad8.setExpression("Length", "Params.pad8_length")

# Sketch on YZ plane
sketch10 = body.newObject("Sketcher::SketchObject", "Sketch009")
sketch10.AttachmentSupport = (doc.getObject("YZ_Plane"), [""])
sketch10.MapMode = "FlatFace"
sketch10.AttachmentOffset = App.Placement(App.Vector(0, 0, 35.0725), App.Rotation())
sketch10.addGeometry(Part.LineSegment(App.Vector(5, 4, 0), App.Vector(5, -4, 0)), False)
sketch10.addGeometry(Part.LineSegment(App.Vector(5, -4, 0), App.Vector(13, -4, 0)), False)
sketch10.addGeometry(Part.LineSegment(App.Vector(13, -4, 0), App.Vector(13, 4, 0)), False)
sketch10.addGeometry(Part.LineSegment(App.Vector(13, 4, 0), App.Vector(5, 4, 0)), False)
sketch10.addConstraint(Sketcher.Constraint("Coincident", 0, 2, 1, 1))
sketch10.addConstraint(Sketcher.Constraint("Coincident", 1, 2, 2, 1))
sketch10.addConstraint(Sketcher.Constraint("Coincident", 2, 2, 3, 1))
sketch10.addConstraint(Sketcher.Constraint("Coincident", 3, 2, 0, 1))
sketch10.addConstraint(Sketcher.Constraint("Vertical", 0))
sketch10.addConstraint(Sketcher.Constraint("Horizontal", 1))
sketch10.addConstraint(Sketcher.Constraint("Vertical", 2))
sketch10.addConstraint(Sketcher.Constraint("Horizontal", 3))
sketch10.addConstraint(Sketcher.Constraint("DistanceX", 1, 1, 1, 2, Q("8 mm")))
sketch10.addConstraint(Sketcher.Constraint("DistanceY", 0, 2, 0, 1, Q("7 mm")))
sketch10.addConstraint(Sketcher.Constraint("DistanceY", 0, 2, -1, 1, Q("3.5 mm")))
sketch10.addConstraint(Sketcher.Constraint("DistanceX", -1, 1, 0, 2, Q("5.25 mm")))
sketch10.setExpression("Constraints[8]", "Params.sketch10_width")
sketch10.setExpression("Constraints[9]", "Params.sketch10_height")
pocket2 = body.newObject("PartDesign::Pocket", "Pocket001")
pocket2.Profile = sketch10
pocket2.setExpression("Length", "Params.pocket2_length")
pocket2.setExpression("TaperAngle", "Params.pocket2_taper")

# Sketch on YZ plane
sketch11 = body.newObject("Sketcher::SketchObject", "Sketch010")
sketch11.AttachmentSupport = (doc.getObject("YZ_Plane"), [""])
sketch11.MapMode = "FlatFace"
sketch11.AttachmentOffset = App.Placement(App.Vector(0, 0, -35.0725), App.Rotation())
sketch11.addGeometry(Part.LineSegment(App.Vector(13, 4, 0), App.Vector(13, -4, 0)), False)
sketch11.addGeometry(Part.LineSegment(App.Vector(13, -4, 0), App.Vector(5, -4, 0)), False)
sketch11.addGeometry(Part.LineSegment(App.Vector(5, -4, 0), App.Vector(5, 4, 0)), False)
sketch11.addGeometry(Part.LineSegment(App.Vector(5, 4, 0), App.Vector(13, 4, 0)), False)
sketch11.addConstraint(Sketcher.Constraint("Coincident", 0, 2, 1, 1))
sketch11.addConstraint(Sketcher.Constraint("Coincident", 1, 2, 2, 1))
sketch11.addConstraint(Sketcher.Constraint("Coincident", 2, 2, 3, 1))
sketch11.addConstraint(Sketcher.Constraint("Coincident", 3, 2, 0, 1))
sketch11.addConstraint(Sketcher.Constraint("Vertical", 0))
sketch11.addConstraint(Sketcher.Constraint("Horizontal", 1))
sketch11.addConstraint(Sketcher.Constraint("Vertical", 2))
sketch11.addConstraint(Sketcher.Constraint("Horizontal", 3))
sketch11.addConstraint(Sketcher.Constraint("DistanceX", 1, 2, 1, 1, Q("8 mm")))
sketch11.addConstraint(Sketcher.Constraint("DistanceY", 0, 2, 0, 1, Q("7 mm")))
sketch11.addConstraint(Sketcher.Constraint("DistanceY", 0, 2, -1, 1, Q("3.5 mm")))
sketch11.addConstraint(Sketcher.Constraint("DistanceX", -1, 1, 0, 2, Q("13.25 mm")))
sketch11.setExpression("Constraints[8]", "Params.sketch11_width")
sketch11.setExpression("Constraints[9]", "Params.sketch11_height")
pocket3 = body.newObject("PartDesign::Pocket", "Pocket002")
pocket3.Profile = sketch11
pocket3.setExpression("Length", "Params.pocket3_length")
pocket3.Reversed = True
pocket3.setExpression("TaperAngle", "Params.pocket3_taper")

# Sketch on XZ plane
sketch12 = body.newObject("Sketcher::SketchObject", "Sketch011")
sketch12.AttachmentSupport = (doc.getObject("XZ_Plane"), [""])
sketch12.MapMode = "FlatFace"
sketch12.AttachmentOffset = App.Placement(App.Vector(0, 0, -18.5), App.Rotation())
sketch12.addGeometry(Part.LineSegment(App.Vector(33.6, 6, 0), App.Vector(31.7, 6, 0)), False)
sketch12.addGeometry(Part.ArcOfCircle(Part.Circle(App.Vector(34.6, 5.6, 0), App.Vector(0, 0, 1), 3), math.radians(-82), math.radians(172)), False)
sketch12.addGeometry(Part.LineSegment(App.Vector(35.1, 2.6, 0), App.Vector(35.1, 4.5, 0)), False)
sketch12.addGeometry(Part.ArcOfCircle(Part.Circle(App.Vector(33.6, 4.5, 0), App.Vector(0, 0, 1), 1.5), math.radians(0), math.radians(90)), False)
sketch12.addGeometry(Part.LineSegment(App.Vector(35.1, -4.5, 0), App.Vector(35.1, -2.6, 0)), False)
sketch12.addGeometry(Part.ArcOfCircle(Part.Circle(App.Vector(34.6, -5.6, 0), App.Vector(0, 0, 1), 3), math.radians(-172), math.radians(82)), False)
sketch12.addGeometry(Part.LineSegment(App.Vector(31.7, -6, 0), App.Vector(33.6, -6, 0)), False)
sketch12.addGeometry(Part.ArcOfCircle(Part.Circle(App.Vector(33.6, -4.5, 0), App.Vector(0, 0, 1), 1.5), math.radians(-90), math.radians(0)), False)
sketch12.addGeometry(Part.ArcOfCircle(Part.Circle(App.Vector(-34.6, 5.6, 0), App.Vector(0, 0, 1), 3), math.radians(8), math.radians(180)), False)
sketch12.addGeometry(Part.LineSegment(App.Vector(-31.7, 6, 0), App.Vector(-33.6, 6, 0)), False)
sketch12.addGeometry(Part.ArcOfCircle(Part.Circle(App.Vector(-33.6, 4.5, 0), App.Vector(0, 0, 1), 1.5), math.radians(90), math.radians(180)), False)
sketch12.addGeometry(Part.LineSegment(App.Vector(-35.1, 4.5, 0), App.Vector(-35.1, 2.6, 0)), False)
sketch12.addGeometry(Part.ArcOfCircle(Part.Circle(App.Vector(-34.6, 5.6, 0), App.Vector(0, 0, 1), 3), math.radians(180), math.radians(262)), False)
sketch12.addGeometry(Part.ArcOfCircle(Part.Circle(App.Vector(-34.6, -5.6, 0), App.Vector(0, 0, 1), 3), math.radians(98), math.radians(180)), False)
sketch12.addGeometry(Part.LineSegment(App.Vector(-35.1, -2.6, 0), App.Vector(-35.1, -4.5, 0)), False)
sketch12.addGeometry(Part.ArcOfCircle(Part.Circle(App.Vector(-33.6, -4.5, 0), App.Vector(0, 0, 1), 1.5), math.radians(180), math.radians(270)), False)
sketch12.addGeometry(Part.LineSegment(App.Vector(-33.6, -6, 0), App.Vector(-31.7, -6, 0)), False)
sketch12.addGeometry(Part.ArcOfCircle(Part.Circle(App.Vector(-34.6, -5.6, 0), App.Vector(0, 0, 1), 3), math.radians(180), math.radians(352)), False)
sketch12.addConstraint(Sketcher.Constraint("Coincident", 0, 2, 1, 2))
sketch12.addConstraint(Sketcher.Constraint("Coincident", 1, 1, 2, 1))
sketch12.addConstraint(Sketcher.Constraint("Tangent", 2, 2, 3, 1))
sketch12.addConstraint(Sketcher.Constraint("Tangent", 3, 2, 0, 1))
sketch12.addConstraint(Sketcher.Constraint("Coincident", 4, 2, 5, 2))
sketch12.addConstraint(Sketcher.Constraint("Coincident", 5, 1, 6, 1))
sketch12.addConstraint(Sketcher.Constraint("Tangent", 6, 2, 7, 1))
sketch12.addConstraint(Sketcher.Constraint("Tangent", 7, 2, 4, 1))
sketch12.addConstraint(Sketcher.Constraint("Coincident", 8, 1, 9, 1))
sketch12.addConstraint(Sketcher.Constraint("Tangent", 9, 2, 10, 1))
sketch12.addConstraint(Sketcher.Constraint("Tangent", 10, 2, 11, 1))
sketch12.addConstraint(Sketcher.Constraint("Coincident", 11, 2, 12, 2))
sketch12.addConstraint(Sketcher.Constraint("Tangent", 12, 1, 8, 2))
sketch12.addConstraint(Sketcher.Constraint("Coincident", 13, 1, 14, 1))
sketch12.addConstraint(Sketcher.Constraint("Tangent", 14, 2, 15, 1))
sketch12.addConstraint(Sketcher.Constraint("Tangent", 15, 2, 16, 1))
sketch12.addConstraint(Sketcher.Constraint("Coincident", 16, 2, 17, 2))
sketch12.addConstraint(Sketcher.Constraint("Tangent", 17, 1, 13, 2))
sketch12.addConstraint(Sketcher.Constraint("Horizontal", 0))
sketch12.addConstraint(Sketcher.Constraint("Vertical", 2))
sketch12.addConstraint(Sketcher.Constraint("Vertical", 4))
sketch12.addConstraint(Sketcher.Constraint("Horizontal", 6))
sketch12.addConstraint(Sketcher.Constraint("Horizontal", 9))
sketch12.addConstraint(Sketcher.Constraint("Vertical", 11))
sketch12.addConstraint(Sketcher.Constraint("Vertical", 14))
sketch12.addConstraint(Sketcher.Constraint("Horizontal", 16))
sketch12.addConstraint(Sketcher.Constraint("Equal", 1, 5))
sketch12.addConstraint(Sketcher.Constraint("Equal", 3, 7))
sketch12.addConstraint(Sketcher.Constraint("Equal", 5, 8))
sketch12.addConstraint(Sketcher.Constraint("Equal", 7, 10))
sketch12.addConstraint(Sketcher.Constraint("Equal", 8, 12))
sketch12.addConstraint(Sketcher.Constraint("Equal", 12, 13))
sketch12.addConstraint(Sketcher.Constraint("Equal", 10, 15))
sketch12.addConstraint(Sketcher.Constraint("Equal", 13, 17))
sketch12.addConstraint(Sketcher.Constraint("Symmetric", 5, 3, 8, 3, -1, 1))
sketch12.addConstraint(Sketcher.Constraint("Symmetric", 7, 3, 10, 3, -1, 1))
sketch12.addConstraint(Sketcher.Constraint("Symmetric", 1, 3, 13, 3, -1, 1))
sketch12.addConstraint(Sketcher.Constraint("Symmetric", 3, 3, 15, 3, -1, 1))
sketch12.addConstraint(Sketcher.Constraint("Symmetric", 1, 3, 8, 3, -2))
sketch12.addConstraint(Sketcher.Constraint("Symmetric", 3, 3, 10, 3, -2))
sketch12.addConstraint(Sketcher.Constraint("Horizontal", 8, 3, 12, 1))
sketch12.addConstraint(Sketcher.Constraint("Horizontal", 13, 3, 17, 1))
sketch12.addConstraint(Sketcher.Constraint("Equal", 16, 2))
sketch12.addConstraint(Sketcher.Constraint("Radius", 1, Q("3 mm")))
sketch12.addConstraint(Sketcher.Constraint("Radius", 3, Q("1.5 mm")))
sketch12.addConstraint(Sketcher.Constraint("DistanceY", -1, 1, 0, 2, Q("6 mm")))
sketch12.addConstraint(Sketcher.Constraint("DistanceX", 10, 3, 3, 3, Q("67.145 mm")))
sketch12.addConstraint(Sketcher.Constraint("DistanceX", 0, 2, 0, 1, Q("1.906996 mm")))
sketch12.setExpression("Constraints[43]", "Params.sketch12_radius")
sketch12.setExpression("Constraints[44]", "Params.sketch12_radius2")
pad9 = body.newObject("PartDesign::Pad", "Pad008")
pad9.Profile = sketch12
pad9.setExpression("Length", "Params.pad9_length")
body2 = doc.addObject("PartDesign::Body", "Body001")
doc.recompute()

body.Placement = App.Placement(App.Vector(0, 12.5, 24.5), App.Rotation(App.Vector(-1, 0, 0), 90))
boolean = body2.newObject("PartDesign::Boolean", "Boolean")
boolean.Type = "Fuse"
boolean.addObjects([body])

doc.recompute()
